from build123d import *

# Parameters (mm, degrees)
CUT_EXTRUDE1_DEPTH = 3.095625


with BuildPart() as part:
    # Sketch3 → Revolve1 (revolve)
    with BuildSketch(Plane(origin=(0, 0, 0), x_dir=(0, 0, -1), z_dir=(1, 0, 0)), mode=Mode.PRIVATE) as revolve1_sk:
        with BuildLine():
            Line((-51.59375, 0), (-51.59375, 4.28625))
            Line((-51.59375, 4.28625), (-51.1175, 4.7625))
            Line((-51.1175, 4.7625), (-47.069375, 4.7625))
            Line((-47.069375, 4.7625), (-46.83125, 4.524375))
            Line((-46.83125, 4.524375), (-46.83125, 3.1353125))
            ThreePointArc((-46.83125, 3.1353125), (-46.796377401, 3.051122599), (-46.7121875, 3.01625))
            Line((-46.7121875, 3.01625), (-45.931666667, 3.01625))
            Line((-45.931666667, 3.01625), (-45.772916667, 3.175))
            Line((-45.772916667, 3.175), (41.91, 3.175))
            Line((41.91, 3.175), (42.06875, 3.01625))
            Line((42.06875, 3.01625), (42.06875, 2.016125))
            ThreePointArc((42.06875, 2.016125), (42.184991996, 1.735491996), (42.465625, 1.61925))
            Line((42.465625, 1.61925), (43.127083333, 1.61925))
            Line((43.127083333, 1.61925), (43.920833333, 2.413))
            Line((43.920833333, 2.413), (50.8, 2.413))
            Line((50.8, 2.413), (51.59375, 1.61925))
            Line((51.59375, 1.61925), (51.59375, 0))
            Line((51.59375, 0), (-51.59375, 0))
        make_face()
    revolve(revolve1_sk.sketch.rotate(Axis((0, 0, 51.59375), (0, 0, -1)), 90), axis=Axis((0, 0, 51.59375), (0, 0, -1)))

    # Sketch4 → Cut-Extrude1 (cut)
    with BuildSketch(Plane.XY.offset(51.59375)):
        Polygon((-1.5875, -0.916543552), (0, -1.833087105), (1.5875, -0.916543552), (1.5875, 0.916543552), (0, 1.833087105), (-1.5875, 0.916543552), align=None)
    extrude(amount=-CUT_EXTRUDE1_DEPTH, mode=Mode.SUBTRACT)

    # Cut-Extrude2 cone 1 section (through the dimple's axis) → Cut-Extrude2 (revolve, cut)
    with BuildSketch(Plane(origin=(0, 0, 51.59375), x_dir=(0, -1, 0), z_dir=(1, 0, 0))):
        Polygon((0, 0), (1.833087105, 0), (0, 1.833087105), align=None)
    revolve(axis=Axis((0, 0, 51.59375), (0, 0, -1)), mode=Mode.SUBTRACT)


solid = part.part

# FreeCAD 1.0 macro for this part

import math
import FreeCAD as App
import Part
import Sketcher
from FreeCAD import Vector
Q = App.Units.Quantity


def add_polygon(sketch, points):
    """Adds a closed chain of lines whose ends are joined by coincident constraints."""
    first, n = sketch.GeometryCount, len(points)
    for a, b in zip(points, points[1:] + points[:1]):
        sketch.addGeometry(Part.LineSegment(App.Vector(*a, 0), App.Vector(*b, 0)), False)
    for i in range(n):
        sketch.addConstraint(Sketcher.Constraint("Coincident", first + i, 2, first + (i + 1) % n, 1))

doc = App.newDocument("Part")
body = doc.addObject("PartDesign::Body", "Body")

# Sketch on YZ plane
sketch1 = body.newObject("Sketcher::SketchObject", "Sketch")
sketch1.AttachmentSupport = (doc.getObject("YZ_Plane"), [""])
sketch1.MapMode = "FlatFace"
sketch1.addGeometry(Part.LineSegment(Vector(4.28625, 51.59375, 0), Vector(0, 51.59375, 0)), False)
sketch1.addGeometry(Part.LineSegment(Vector(0, 51.59375, 0), Vector(0, -51.59375, 0)), False)
sketch1.addGeometry(Part.LineSegment(Vector(0, -51.59375, 0), Vector(1.61925, -51.59375, 0)), False)
sketch1.addGeometry(Part.LineSegment(Vector(1.61925, -51.59375, 0), Vector(2.413, -50.8, 0)), False)
sketch1.addGeometry(Part.LineSegment(Vector(2.413, -50.8, 0), Vector(2.413, -43.920833, 0)), False)
sketch1.addGeometry(Part.LineSegment(Vector(2.413, -43.920833, 0), Vector(1.61925, -43.127083, 0)), False)
sketch1.addGeometry(Part.LineSegment(Vector(1.61925, -43.127083, 0), Vector(1.61925, -42.465625, 0)), False)
sketch1.addGeometry(Part.ArcOfCircle(Part.Circle(Vector(2.016125, -42.465625, 0), Vector(0, 0, 1), 0.396875), math.radians(90), math.radians(180)), False)
sketch1.addGeometry(Part.LineSegment(Vector(2.016125, -42.06875, 0), Vector(3.01625, -42.06875, 0)), False)
sketch1.addGeometry(Part.LineSegment(Vector(3.01625, -42.06875, 0), Vector(3.175, -41.91, 0)), False)
sketch1.addGeometry(Part.LineSegment(Vector(3.175, -41.91, 0), Vector(3.175, 45.772917, 0)), False)
sketch1.addGeometry(Part.LineSegment(Vector(3.175, 45.772917, 0), Vector(3.01625, 45.931667, 0)), False)
sketch1.addGeometry(Part.LineSegment(Vector(3.01625, 45.931667, 0), Vector(3.01625, 46.712187, 0)), False)
sketch1.addGeometry(Part.ArcOfCircle(Part.Circle(Vector(3.135312, 46.712187, 0), Vector(0, 0, 1), 0.119063), math.radians(90), math.radians(180)), False)
sketch1.addGeometry(Part.LineSegment(Vector(3.135312, 46.83125, 0), Vector(4.524375, 46.83125, 0)), False)
sketch1.addGeometry(Part.LineSegment(Vector(4.524375, 46.83125, 0), Vector(4.7625, 47.069375, 0)), False)
sketch1.addGeometry(Part.LineSegment(Vector(4.7625, 47.069375, 0), Vector(4.7625, 51.1175, 0)), False)
sketch1.addGeometry(Part.LineSegment(Vector(4.7625, 51.1175, 0), Vector(4.28625, 51.59375, 0)), False)
sketch1.addConstraint(Sketcher.Constraint("Coincident", 0, 2, 1, 1))
sketch1.addConstraint(Sketcher.Constraint("Coincident", 1, 2, 2, 1))
sketch1.addConstraint(Sketcher.Constraint("Coincident", 2, 2, 3, 1))
sketch1.addConstraint(Sketcher.Constraint("Coincident", 3, 2, 4, 1))
sketch1.addConstraint(Sketcher.Constraint("Coincident", 4, 2, 5, 1))
sketch1.addConstraint(Sketcher.Constraint("Coincident", 5, 2, 6, 1))
sketch1.addConstraint(Sketcher.Constraint("Tangent", 6, 2, 7, 2))
sketch1.addConstraint(Sketcher.Constraint("Tangent", 7, 1, 8, 1))
sketch1.addConstraint(Sketcher.Constraint("Coincident", 8, 2, 9, 1))
sketch1.addConstraint(Sketcher.Constraint("Coincident", 9, 2, 10, 1))
sketch1.addConstraint(Sketcher.Constraint("Coincident", 10, 2, 11, 1))
sketch1.addConstraint(Sketcher.Constraint("Coincident", 11, 2, 12, 1))
sketch1.addConstraint(Sketcher.Constraint("Tangent", 12, 2, 13, 2))
sketch1.addConstraint(Sketcher.Constraint("Tangent", 13, 1, 14, 1))
sketch1.addConstraint(Sketcher.Constraint("Coincident", 14, 2, 15, 1))
sketch1.addConstraint(Sketcher.Constraint("Coincident", 15, 2, 16, 1))
sketch1.addConstraint(Sketcher.Constraint("Coincident", 16, 2, 17, 1))
sketch1.addConstraint(Sketcher.Constraint("Coincident", 17, 2, 0, 1))
sketch1.addConstraint(Sketcher.Constraint("Horizontal", 0))
sketch1.addConstraint(Sketcher.Constraint("Vertical", 1))
sketch1.addConstraint(Sketcher.Constraint("Horizontal", 2))
sketch1.addConstraint(Sketcher.Constraint("Vertical", 4))
sketch1.addConstraint(Sketcher.Constraint("Vertical", 6))
sketch1.addConstraint(Sketcher.Constraint("Horizontal", 8))
sketch1.addConstraint(Sketcher.Constraint("Vertical", 10))
sketch1.addConstraint(Sketcher.Constraint("Vertical", 12))
sketch1.addConstraint(Sketcher.Constraint("Horizontal", 14))
sketch1.addConstraint(Sketcher.Constraint("Vertical", 16))
sketch1.addConstraint(Sketcher.Constraint("Symmetric", 0, 2, 1, 2, -1, 1))
sketch1.addConstraint(Sketcher.Constraint("Perpendicular", 3, 5))
sketch1.addConstraint(Sketcher.Constraint("Perpendicular", 5, 9))
sketch1.addConstraint(Sketcher.Constraint("Perpendicular", 9, 11))
sketch1.addConstraint(Sketcher.Constraint("Perpendicular", 11, 15))
sketch1.addConstraint(Sketcher.Constraint("Perpendicular", 15, 17))
sketch1.addConstraint(Sketcher.Constraint("Vertical", 2, 2, 5, 2))
sketch1.addConstraint(Sketcher.Constraint("Vertical", 8, 2, 11, 2))
sketch1.addConstraint(Sketcher.Constraint("Equal", 3, 5))
sketch1.addConstraint(Sketcher.Constraint("DistanceY", 3, 2, -1, 1, Q("2 in")))
sketch1.addConstraint(Sketcher.Constraint("Radius", 7, Q("0.015625 in")))
sketch1.addConstraint(Sketcher.Constraint("DistanceY", 1, 2, 1, 1, Q("4.0625 in")))
sketch1.addConstraint(Sketcher.Constraint("DistanceY", 9, 2, -1, 1, Q("1.65 in")))
sketch1.addConstraint(Sketcher.Constraint("DistanceY", 7, 3, -1, 1, Q("1.671875 in")))
sketch1.addConstraint(Sketcher.Constraint("DistanceX", -1, 1, 3, 2, Q("0.095 in")))
sketch1.addConstraint(Sketcher.Constraint("DistanceX", -1, 1, 9, 2, Q("0.125 in")))
sketch1.addConstraint(Sketcher.Constraint("DistanceY", -1, 1, 13, 1, Q("1.84375 in")))
sketch1.addConstraint(Sketcher.Constraint("DistanceX", -1, 1, 15, 2, Q("0.1875 in")))
sketch1.addConstraint(Sketcher.Constraint("DistanceY", -1, 1, 16, 2, Q("2.0125 in")))
sketch1.addConstraint(Sketcher.Constraint("Radius", 13, Q("0.119063 mm")))
sketch1.addConstraint(Sketcher.Constraint("DistanceY", 6, 1, 6, 2, Q("0.661458 mm")))
sketch1.addConstraint(Sketcher.Constraint("DistanceY", 12, 1, 12, 2, Q("0.780521 mm")))
sketch1.addConstraint(Sketcher.Constraint("Distance", 15, Q("0.33676 mm")))
revolution = body.newObject("PartDesign::Revolution", "Revolution")
revolution.Profile = sketch1
revolution.ReferenceAxis = (sketch1, ["V_Axis"])
revolution.Angle = 360

# Sketch on XY plane
sketch2 = body.newObject("Sketcher::SketchObject", "Sketch001")
sketch2.AttachmentSupport = (doc.getObject("XY_Plane"), [""])
sketch2.MapMode = "FlatFace"
sketch2.AttachmentOffset = App.Placement(Vector(0, 0, 2.03125 * 25.4), App.Rotation())
add_polygon(sketch2, [(-1.5875, -0.916544), (0, -1.833087), (1.5875, -0.916544), (1.5875, 0.916544), (0, 1.833087), (-1.5875, 0.916544)])  # lines 0-5
sketch2.addConstraint(Sketcher.Constraint("Vertical", 2))
sketch2.addConstraint(Sketcher.Constraint("Vertical", 5))
sketch2.addConstraint(Sketcher.Constraint("Symmetric", 0, 2, 3, 2, -1, 1))
sketch2.addConstraint(Sketcher.Constraint("Symmetric", 1, 2, 4, 2, -1, 1))
sketch2.addConstraint(Sketcher.Constraint("PointOnObject", 0, 2, -2))
sketch2.addConstraint(Sketcher.Constraint("Parallel", 0, 3))
sketch2.addConstraint(Sketcher.Constraint("Horizontal", 2, 2, 4, 2))
sketch2.addConstraint(Sketcher.Constraint("Angle", 0, Q("-30 deg")))
sketch2.addConstraint(Sketcher.Constraint("DistanceX", -1, 1, 1, 2, Q("0.0625 in")))
sketch2.addConstraint(Sketcher.Constraint("DistanceY", 2, 1, 2, 2, Q("1.833087 mm")))
pocket1 = body.newObject("PartDesign::Pocket", "Pocket")
pocket1.Profile = sketch2
pocket1.Length = 3.095625

# Sketch on YZ plane
sketch3 = body.newObject("Sketcher::SketchObject", "Sketch002")
sketch3.AttachmentSupport = (doc.getObject("YZ_Plane"), [""])
sketch3.MapMode = "FlatFace"
add_polygon(sketch3, [(0, 51.59375), (-1.833087, 51.59375), (0, 49.760663)])  # lines 0-2
sketch3.addConstraint(Sketcher.Constraint("Horizontal", 0))
sketch3.addConstraint(Sketcher.Constraint("Vertical", 2))
sketch3.addConstraint(Sketcher.Constraint("PointOnObject", 1, 2, -2))
sketch3.addConstraint(Sketcher.Constraint("Equal", 0, 2))
sketch3.addConstraint(Sketcher.Constraint("DistanceY", -1, 1, 0, 2, Q("2.03125 in")))
sketch3.addConstraint(Sketcher.Constraint("DistanceX", 0, 2, 0, 1, Q("1.833087 mm")))
groove = body.newObject("PartDesign::Groove", "Groove")
groove.Profile = sketch3
groove.ReferenceAxis = (sketch3, ["V_Axis"])
groove.Angle = 360

doc.recompute()
